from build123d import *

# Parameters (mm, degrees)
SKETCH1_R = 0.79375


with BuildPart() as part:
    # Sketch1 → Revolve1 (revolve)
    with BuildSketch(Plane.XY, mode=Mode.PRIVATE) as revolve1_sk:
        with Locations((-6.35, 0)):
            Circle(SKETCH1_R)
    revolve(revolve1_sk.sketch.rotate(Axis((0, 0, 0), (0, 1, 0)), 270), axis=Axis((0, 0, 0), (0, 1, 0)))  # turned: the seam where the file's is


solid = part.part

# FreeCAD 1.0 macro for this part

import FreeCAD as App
import Part
import Sketcher
from FreeCAD import Vector
Q = App.Units.Quantity

doc = App.newDocument("Part")
body = doc.addObject("PartDesign::Body", "Body")

# Sketch on XY plane
sketch1 = body.newObject("Sketcher::SketchObject", "Sketch")
sketch1.AttachmentSupport = (doc.getObject("XY_Plane"), [""])
sketch1.MapMode = "FlatFace"
sketch1.addGeometry(Part.Circle(Vector(-6.3, 0, 0), Vector(0, 0, 1), 0.8), False)
sketch1.addConstraint([
    Sketcher.Constraint("PointOnObject", 0, 3, -1),
    Sketcher.Constraint("Diameter", 0, Q("0.0625 in")),
    Sketcher.Constraint("DistanceX", 0, 3, -1, 1, Q("0.25 in")),
])
revolution = body.newObject("PartDesign::Revolution", "Revolution")
revolution.Profile = sketch1
revolution.ReferenceAxis = (sketch1, ["V_Axis"])
revolution.Angle = 360

doc.recompute()
